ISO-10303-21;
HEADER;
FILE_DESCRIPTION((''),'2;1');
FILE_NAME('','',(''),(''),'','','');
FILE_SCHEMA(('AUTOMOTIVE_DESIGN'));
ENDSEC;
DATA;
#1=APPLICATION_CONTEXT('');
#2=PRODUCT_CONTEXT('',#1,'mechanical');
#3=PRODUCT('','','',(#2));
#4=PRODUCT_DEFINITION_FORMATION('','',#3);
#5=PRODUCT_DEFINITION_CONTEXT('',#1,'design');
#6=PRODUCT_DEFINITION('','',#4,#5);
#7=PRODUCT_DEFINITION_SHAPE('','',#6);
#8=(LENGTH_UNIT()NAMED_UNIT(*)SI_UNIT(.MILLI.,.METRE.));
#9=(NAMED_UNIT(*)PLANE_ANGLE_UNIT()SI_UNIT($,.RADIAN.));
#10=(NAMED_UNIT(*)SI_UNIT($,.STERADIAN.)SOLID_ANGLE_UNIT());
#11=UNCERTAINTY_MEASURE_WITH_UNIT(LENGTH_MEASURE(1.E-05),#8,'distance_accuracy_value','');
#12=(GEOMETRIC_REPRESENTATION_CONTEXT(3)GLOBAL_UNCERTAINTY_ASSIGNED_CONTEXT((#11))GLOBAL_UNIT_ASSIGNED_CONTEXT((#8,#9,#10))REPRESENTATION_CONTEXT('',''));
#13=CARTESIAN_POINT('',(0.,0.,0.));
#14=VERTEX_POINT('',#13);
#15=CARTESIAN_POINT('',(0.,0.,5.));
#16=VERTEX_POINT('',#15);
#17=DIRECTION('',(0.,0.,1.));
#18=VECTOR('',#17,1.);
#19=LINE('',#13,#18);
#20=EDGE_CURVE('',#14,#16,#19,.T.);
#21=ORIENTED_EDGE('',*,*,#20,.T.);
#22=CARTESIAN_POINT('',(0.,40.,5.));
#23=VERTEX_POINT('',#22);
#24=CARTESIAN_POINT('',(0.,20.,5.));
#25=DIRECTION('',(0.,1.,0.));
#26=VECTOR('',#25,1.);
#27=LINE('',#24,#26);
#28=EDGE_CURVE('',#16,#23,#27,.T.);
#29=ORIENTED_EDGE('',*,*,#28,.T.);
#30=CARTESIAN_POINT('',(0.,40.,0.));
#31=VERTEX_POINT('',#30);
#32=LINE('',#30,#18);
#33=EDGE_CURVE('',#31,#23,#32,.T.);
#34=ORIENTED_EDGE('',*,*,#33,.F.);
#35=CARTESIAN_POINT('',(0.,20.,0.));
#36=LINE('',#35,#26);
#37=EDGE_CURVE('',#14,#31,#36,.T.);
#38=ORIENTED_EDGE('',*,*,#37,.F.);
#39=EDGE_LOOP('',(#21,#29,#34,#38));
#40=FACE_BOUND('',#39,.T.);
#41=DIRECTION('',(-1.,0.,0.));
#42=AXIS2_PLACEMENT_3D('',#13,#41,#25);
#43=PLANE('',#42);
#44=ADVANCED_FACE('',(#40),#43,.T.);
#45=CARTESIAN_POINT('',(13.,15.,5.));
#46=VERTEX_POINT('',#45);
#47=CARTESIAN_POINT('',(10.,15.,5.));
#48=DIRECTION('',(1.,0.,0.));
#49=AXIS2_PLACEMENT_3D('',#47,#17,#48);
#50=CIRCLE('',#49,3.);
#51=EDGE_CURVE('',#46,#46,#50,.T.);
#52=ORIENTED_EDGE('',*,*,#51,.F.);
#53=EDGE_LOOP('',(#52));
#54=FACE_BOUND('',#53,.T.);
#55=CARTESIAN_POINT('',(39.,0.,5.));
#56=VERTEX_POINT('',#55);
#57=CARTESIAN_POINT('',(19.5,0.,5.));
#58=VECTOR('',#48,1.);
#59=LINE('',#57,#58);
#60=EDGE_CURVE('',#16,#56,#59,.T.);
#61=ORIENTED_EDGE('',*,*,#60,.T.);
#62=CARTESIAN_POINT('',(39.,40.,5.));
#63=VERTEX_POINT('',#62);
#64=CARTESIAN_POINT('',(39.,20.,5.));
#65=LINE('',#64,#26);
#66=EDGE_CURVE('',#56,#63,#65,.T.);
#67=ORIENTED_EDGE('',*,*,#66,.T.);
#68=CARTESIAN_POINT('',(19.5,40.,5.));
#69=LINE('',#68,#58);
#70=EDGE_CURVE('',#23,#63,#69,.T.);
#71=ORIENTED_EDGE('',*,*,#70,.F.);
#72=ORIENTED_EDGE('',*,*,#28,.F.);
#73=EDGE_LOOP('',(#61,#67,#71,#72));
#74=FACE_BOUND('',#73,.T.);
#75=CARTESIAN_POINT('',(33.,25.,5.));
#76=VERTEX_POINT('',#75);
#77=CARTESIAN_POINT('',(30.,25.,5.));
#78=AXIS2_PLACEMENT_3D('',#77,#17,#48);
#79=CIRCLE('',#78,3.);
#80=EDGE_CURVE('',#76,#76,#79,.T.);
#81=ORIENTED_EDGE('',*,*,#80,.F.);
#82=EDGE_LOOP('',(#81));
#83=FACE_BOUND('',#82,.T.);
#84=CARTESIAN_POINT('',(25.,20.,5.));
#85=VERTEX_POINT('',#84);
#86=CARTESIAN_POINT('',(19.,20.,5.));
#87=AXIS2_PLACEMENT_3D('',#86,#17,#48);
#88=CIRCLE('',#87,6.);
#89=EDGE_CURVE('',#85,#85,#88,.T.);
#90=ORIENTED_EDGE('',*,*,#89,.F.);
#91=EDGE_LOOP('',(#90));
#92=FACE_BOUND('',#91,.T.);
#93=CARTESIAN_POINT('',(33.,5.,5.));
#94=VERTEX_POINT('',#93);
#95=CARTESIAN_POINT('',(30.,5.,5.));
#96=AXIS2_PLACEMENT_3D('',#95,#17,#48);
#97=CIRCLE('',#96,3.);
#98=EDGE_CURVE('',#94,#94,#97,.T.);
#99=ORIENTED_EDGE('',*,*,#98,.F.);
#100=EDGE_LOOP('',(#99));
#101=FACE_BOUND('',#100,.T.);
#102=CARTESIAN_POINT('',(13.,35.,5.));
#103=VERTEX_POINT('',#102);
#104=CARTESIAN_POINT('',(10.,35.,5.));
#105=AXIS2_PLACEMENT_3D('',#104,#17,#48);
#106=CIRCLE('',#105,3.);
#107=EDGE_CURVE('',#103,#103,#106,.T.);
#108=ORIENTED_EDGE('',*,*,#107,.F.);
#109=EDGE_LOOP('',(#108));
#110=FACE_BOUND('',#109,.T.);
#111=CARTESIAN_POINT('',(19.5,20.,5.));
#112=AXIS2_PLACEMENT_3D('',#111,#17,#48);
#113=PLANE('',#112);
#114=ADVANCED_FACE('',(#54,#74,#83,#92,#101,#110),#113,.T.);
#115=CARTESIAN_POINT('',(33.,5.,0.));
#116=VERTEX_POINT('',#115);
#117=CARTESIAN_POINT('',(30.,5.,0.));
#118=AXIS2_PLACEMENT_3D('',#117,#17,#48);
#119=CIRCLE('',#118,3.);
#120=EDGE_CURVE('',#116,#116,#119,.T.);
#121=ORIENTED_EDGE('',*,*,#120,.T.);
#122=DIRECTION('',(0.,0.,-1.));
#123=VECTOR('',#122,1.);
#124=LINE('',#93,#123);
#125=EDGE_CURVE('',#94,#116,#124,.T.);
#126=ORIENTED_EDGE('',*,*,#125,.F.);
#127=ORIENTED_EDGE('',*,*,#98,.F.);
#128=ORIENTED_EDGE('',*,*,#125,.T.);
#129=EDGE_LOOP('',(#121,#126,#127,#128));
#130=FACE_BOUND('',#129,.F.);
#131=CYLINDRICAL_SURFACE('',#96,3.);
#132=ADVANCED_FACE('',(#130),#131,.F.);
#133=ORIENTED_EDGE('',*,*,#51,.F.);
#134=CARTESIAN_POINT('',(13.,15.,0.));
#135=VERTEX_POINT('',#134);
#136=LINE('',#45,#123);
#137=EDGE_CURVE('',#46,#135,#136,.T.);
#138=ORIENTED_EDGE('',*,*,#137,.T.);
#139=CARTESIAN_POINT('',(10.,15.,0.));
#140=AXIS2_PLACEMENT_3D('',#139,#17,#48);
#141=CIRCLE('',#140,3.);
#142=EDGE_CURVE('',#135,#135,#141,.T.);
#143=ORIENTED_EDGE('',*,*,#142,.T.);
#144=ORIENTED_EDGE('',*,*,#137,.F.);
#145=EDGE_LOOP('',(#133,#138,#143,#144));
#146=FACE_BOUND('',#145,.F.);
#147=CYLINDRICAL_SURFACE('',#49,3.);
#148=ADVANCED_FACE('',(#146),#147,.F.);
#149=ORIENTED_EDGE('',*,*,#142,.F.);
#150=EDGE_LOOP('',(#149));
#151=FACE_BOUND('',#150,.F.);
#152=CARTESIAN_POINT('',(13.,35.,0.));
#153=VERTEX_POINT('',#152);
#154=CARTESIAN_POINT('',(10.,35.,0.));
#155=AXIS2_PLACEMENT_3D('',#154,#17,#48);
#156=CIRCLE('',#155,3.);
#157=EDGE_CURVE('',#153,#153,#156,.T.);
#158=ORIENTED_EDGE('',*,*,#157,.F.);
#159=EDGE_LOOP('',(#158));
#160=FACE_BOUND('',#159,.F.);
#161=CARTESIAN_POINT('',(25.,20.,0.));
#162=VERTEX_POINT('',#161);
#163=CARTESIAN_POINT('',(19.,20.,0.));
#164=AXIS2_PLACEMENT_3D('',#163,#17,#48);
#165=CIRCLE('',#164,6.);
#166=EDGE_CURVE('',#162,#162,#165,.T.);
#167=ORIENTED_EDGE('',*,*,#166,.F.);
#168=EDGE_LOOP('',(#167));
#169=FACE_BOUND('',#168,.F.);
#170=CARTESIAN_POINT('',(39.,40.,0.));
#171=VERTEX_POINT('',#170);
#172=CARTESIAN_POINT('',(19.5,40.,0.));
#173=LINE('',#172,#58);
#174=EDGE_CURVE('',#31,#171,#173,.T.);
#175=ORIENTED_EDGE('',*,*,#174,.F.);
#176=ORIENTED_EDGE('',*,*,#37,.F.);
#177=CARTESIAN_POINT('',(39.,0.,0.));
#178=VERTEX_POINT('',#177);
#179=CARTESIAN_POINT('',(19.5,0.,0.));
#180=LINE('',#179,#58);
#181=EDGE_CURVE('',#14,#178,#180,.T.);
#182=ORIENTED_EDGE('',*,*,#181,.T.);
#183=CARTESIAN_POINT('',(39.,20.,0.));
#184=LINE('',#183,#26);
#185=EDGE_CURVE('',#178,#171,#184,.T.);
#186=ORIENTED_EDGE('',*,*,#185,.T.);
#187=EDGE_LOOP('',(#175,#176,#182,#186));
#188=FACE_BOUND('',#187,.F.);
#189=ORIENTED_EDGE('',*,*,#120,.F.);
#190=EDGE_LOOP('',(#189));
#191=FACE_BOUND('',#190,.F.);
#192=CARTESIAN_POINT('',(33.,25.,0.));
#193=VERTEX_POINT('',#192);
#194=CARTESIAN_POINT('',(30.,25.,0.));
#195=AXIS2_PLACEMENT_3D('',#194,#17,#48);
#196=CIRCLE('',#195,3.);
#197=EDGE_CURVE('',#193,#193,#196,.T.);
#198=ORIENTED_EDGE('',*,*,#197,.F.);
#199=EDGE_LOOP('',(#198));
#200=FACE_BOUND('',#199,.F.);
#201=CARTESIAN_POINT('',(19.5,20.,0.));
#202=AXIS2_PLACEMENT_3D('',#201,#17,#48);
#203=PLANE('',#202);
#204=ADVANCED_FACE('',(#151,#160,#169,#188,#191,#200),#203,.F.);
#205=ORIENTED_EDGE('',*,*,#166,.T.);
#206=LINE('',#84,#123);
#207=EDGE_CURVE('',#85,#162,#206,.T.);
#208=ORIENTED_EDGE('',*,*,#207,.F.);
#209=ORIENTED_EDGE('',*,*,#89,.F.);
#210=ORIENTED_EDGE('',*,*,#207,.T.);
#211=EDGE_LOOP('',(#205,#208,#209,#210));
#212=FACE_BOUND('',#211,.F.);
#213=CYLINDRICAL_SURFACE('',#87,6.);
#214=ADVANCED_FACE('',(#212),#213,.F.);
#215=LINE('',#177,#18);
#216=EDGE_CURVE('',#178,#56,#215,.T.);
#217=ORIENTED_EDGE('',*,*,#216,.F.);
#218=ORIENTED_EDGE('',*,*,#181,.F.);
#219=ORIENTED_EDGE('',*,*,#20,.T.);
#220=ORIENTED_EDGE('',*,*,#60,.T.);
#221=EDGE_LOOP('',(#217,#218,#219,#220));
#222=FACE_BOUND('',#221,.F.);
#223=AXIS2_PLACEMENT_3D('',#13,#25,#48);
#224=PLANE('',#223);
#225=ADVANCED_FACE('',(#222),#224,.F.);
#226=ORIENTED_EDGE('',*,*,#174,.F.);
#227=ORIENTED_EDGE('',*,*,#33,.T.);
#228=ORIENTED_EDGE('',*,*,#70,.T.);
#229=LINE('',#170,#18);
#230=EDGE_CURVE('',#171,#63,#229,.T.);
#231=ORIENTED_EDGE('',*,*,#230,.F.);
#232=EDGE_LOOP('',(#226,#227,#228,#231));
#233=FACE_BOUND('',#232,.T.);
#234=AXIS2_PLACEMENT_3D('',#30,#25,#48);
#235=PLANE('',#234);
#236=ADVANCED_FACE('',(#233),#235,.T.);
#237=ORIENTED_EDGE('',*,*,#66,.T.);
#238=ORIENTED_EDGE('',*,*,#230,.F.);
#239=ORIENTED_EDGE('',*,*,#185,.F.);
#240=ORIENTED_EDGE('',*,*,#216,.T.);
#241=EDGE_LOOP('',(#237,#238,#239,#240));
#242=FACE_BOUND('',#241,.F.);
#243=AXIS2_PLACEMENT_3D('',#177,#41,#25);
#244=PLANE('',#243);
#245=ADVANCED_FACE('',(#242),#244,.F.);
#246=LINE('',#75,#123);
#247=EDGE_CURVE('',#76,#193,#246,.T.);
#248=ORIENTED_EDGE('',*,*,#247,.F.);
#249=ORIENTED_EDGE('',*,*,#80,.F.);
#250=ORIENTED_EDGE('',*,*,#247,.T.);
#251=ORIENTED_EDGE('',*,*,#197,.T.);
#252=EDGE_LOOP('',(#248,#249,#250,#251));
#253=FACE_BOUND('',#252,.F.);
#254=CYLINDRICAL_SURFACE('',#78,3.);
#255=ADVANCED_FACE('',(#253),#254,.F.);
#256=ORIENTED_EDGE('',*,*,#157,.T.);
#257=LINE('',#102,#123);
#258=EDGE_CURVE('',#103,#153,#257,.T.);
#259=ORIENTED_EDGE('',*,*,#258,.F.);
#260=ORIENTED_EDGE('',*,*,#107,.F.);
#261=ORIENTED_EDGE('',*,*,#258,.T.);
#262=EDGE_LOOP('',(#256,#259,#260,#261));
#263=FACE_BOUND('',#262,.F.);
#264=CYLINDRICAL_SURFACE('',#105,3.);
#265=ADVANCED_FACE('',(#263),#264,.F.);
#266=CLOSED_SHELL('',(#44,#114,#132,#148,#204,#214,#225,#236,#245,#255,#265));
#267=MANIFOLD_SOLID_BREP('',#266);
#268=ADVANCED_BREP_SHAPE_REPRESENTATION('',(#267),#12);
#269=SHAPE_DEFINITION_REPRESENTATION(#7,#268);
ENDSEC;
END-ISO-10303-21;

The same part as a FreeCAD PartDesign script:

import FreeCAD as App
import Part
import Sketcher

V = App.Vector

doc = App.newDocument("Part")
body = doc.addObject("PartDesign::Body", "Body")

# Sketch on XY plane
sketch1 = body.newObject("Sketcher::SketchObject", "Sketch")
sketch1.AttachmentSupport = (doc.getObject("XY_Plane"), [""])
sketch1.MapMode = "FlatFace"
sketch1.addGeometry(Part.LineSegment(V(0, 40, 0), V(0, 0, 0)), False)
sketch1.addGeometry(Part.LineSegment(V(0, 0, 0), V(39, 0, 0)), False)
sketch1.addGeometry(Part.LineSegment(V(39, 0, 0), V(39, 40, 0)), False)
sketch1.addGeometry(Part.LineSegment(V(39, 40, 0), V(0, 40, 0)), False)
sketch1.addConstraint(Sketcher.Constraint("Coincident", 0, 2, 1, 1))
sketch1.addConstraint(Sketcher.Constraint("Coincident", 1, 2, 2, 1))
sketch1.addConstraint(Sketcher.Constraint("Coincident", 2, 2, 3, 1))
sketch1.addConstraint(Sketcher.Constraint("Coincident", 3, 2, 0, 1))
sketch1.addConstraint(Sketcher.Constraint("Vertical", 0))
sketch1.addConstraint(Sketcher.Constraint("Horizontal", 1))
sketch1.addConstraint(Sketcher.Constraint("Vertical", 2))
sketch1.addConstraint(Sketcher.Constraint("Horizontal", 3))
sketch1.addConstraint(Sketcher.Constraint("Coincident", 0, 2, -1, 1))
sketch1.addConstraint(Sketcher.Constraint("DistanceX", 1, 1, 1, 2, 39.0))
sketch1.addConstraint(Sketcher.Constraint("DistanceY", 0, 2, 0, 1, 40.0))
pad1 = body.newObject("PartDesign::Pad", "Pad")
pad1.Profile = sketch1
pad1.Length = 5

# Sketch on XY plane
sketch2 = body.newObject("Sketcher::SketchObject", "Sketch001")
sketch2.AttachmentSupport = (doc.getObject("XY_Plane"), [""])
sketch2.MapMode = "FlatFace"
sketch2.AttachmentOffset = App.Placement(V(0, 0, 5), App.Rotation())
sketch2.addGeometry(Part.Circle(V(10, 35, 0), V(0, 0, 1), 3), False)
sketch2.addGeometry(Part.Circle(V(30, 25, 0), V(0, 0, 1), 3), False)
sketch2.addGeometry(Part.Circle(V(10, 15, 0), V(0, 0, 1), 3), False)
sketch2.addGeometry(Part.Circle(V(30, 5, 0), V(0, 0, 1), 3), False)
sketch2.addGeometry(Part.Circle(V(19, 20, 0), V(0, 0, 1), 6), False)
sketch2.addConstraint(Sketcher.Constraint("Equal", 0, 1))
sketch2.addConstraint(Sketcher.Constraint("Equal", 1, 2))
sketch2.addConstraint(Sketcher.Constraint("Equal", 2, 3))
sketch2.addConstraint(Sketcher.Constraint("Vertical", 0, 3, 2, 3))
sketch2.addConstraint(Sketcher.Constraint("Vertical", 1, 3, 3, 3))
sketch2.addConstraint(Sketcher.Constraint("Diameter", 0, 6.0))
sketch2.addConstraint(Sketcher.Constraint("Diameter", 4, 12.0))
sketch2.addConstraint(Sketcher.Constraint("DistanceX", -1, 1, 0, 3, 10.0))
sketch2.addConstraint(Sketcher.Constraint("DistanceY", -1, 1, 0, 3, 35.0))
sketch2.addConstraint(Sketcher.Constraint("DistanceX", -1, 1, 1, 3, 30.0))
sketch2.addConstraint(Sketcher.Constraint("DistanceY", -1, 1, 1, 3, 25.0))
sketch2.addConstraint(Sketcher.Constraint("DistanceY", -1, 1, 2, 3, 15.0))
sketch2.addConstraint(Sketcher.Constraint("DistanceY", -1, 1, 3, 3, 5.0))
sketch2.addConstraint(Sketcher.Constraint("DistanceX", -1, 1, 4, 3, 19.0))
sketch2.addConstraint(Sketcher.Constraint("DistanceY", -1, 1, 4, 3, 20.0))
pocket1 = body.newObject("PartDesign::Pocket", "Pocket")
pocket1.Profile = sketch2
pocket1.Type = "ThroughAll"

doc.recompute()
